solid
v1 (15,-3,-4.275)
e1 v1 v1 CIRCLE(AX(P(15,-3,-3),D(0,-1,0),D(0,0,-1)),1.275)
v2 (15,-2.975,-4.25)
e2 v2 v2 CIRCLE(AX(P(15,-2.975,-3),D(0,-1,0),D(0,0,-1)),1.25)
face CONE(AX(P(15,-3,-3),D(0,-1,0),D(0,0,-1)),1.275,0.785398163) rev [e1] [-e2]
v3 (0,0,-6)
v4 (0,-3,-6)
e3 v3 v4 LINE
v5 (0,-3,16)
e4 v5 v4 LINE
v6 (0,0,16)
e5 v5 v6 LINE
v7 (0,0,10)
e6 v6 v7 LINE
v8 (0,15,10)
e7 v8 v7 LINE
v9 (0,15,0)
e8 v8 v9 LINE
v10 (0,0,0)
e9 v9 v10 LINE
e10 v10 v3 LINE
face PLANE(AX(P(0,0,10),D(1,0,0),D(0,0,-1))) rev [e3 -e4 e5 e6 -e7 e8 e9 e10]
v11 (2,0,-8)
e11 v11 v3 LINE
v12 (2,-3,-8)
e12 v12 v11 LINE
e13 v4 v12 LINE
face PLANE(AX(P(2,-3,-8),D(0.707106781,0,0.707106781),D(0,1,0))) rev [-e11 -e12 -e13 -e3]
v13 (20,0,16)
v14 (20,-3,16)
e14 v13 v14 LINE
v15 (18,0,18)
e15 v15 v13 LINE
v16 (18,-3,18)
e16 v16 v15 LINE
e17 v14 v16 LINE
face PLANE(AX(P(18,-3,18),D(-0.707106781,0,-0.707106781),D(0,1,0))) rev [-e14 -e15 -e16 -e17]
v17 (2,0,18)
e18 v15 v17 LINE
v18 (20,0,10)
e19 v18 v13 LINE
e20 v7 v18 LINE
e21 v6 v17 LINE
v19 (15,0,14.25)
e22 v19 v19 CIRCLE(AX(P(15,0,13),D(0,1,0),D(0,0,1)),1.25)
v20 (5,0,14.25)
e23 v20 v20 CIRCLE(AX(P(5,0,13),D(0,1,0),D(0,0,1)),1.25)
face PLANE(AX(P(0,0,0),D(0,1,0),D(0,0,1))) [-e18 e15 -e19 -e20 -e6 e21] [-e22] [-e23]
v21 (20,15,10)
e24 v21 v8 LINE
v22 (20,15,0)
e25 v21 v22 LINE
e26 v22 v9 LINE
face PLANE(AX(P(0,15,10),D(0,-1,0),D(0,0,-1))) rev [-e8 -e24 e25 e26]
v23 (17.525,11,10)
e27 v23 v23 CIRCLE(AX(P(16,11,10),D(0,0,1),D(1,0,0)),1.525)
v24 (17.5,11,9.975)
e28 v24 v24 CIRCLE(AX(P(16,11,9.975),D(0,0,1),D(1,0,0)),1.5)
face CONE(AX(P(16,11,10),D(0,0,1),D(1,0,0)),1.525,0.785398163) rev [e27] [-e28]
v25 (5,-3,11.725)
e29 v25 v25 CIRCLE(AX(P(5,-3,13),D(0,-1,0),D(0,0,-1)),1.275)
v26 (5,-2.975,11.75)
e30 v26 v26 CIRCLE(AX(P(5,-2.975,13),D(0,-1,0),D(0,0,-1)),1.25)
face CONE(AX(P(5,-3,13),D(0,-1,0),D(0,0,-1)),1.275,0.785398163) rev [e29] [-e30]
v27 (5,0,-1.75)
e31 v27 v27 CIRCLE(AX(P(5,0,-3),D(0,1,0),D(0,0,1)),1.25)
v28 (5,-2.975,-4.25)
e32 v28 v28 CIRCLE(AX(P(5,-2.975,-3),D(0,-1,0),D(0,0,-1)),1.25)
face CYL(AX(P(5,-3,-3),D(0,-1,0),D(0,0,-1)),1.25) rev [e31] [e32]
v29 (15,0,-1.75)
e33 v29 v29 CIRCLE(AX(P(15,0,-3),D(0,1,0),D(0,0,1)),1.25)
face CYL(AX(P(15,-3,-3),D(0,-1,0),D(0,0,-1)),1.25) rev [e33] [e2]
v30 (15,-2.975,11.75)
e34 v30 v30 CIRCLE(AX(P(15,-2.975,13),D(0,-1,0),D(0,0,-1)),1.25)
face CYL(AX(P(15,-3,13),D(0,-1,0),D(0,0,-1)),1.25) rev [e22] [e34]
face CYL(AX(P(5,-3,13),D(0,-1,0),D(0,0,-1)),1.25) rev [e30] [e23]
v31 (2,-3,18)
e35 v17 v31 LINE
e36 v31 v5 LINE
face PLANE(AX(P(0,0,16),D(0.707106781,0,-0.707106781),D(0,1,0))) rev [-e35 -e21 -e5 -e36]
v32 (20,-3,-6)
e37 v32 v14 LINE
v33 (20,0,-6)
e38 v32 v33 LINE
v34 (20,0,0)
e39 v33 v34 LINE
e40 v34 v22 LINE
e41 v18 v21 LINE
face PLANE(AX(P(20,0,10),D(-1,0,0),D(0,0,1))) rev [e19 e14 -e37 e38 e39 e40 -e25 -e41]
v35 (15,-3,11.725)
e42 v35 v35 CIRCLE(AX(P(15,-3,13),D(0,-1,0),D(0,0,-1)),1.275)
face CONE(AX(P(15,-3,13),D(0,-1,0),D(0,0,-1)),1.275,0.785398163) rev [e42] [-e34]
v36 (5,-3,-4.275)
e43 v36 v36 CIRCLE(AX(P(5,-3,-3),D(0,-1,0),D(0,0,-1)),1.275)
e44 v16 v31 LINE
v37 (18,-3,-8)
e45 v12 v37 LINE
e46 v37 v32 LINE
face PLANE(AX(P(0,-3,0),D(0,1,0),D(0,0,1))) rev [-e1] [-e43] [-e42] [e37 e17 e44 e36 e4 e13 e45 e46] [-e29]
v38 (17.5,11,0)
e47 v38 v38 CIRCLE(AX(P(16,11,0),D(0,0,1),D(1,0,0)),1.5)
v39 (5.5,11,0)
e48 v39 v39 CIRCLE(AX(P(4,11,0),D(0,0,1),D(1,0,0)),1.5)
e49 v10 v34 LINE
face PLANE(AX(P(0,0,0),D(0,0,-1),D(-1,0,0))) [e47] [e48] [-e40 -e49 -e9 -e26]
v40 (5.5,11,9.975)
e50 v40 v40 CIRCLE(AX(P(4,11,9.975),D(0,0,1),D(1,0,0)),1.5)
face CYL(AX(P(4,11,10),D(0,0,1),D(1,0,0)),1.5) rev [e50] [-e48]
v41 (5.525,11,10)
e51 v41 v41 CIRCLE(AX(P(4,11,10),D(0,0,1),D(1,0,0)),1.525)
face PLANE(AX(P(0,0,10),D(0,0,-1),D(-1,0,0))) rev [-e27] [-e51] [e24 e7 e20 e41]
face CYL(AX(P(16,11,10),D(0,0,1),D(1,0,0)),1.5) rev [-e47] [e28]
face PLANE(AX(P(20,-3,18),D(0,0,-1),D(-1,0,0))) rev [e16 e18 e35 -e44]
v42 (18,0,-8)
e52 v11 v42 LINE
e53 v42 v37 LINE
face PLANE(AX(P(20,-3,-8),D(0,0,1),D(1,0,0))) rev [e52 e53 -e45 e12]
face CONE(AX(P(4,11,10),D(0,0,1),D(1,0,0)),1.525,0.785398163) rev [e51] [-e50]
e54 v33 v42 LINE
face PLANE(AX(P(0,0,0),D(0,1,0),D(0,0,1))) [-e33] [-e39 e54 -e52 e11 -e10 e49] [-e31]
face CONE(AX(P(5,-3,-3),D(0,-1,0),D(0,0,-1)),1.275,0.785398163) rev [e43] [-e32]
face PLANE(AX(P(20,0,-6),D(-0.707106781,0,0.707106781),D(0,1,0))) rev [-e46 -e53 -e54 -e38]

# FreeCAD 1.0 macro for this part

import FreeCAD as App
import Part
import Sketcher
from FreeCAD import Vector
Q = App.Units.Quantity


def edges_at(feature, points):
    """Names of the edges that pass closest to the given points."""
    edges = feature.Shape.Edges
    near = lambda p: min(range(len(edges)), key=lambda i: edges[i].distToShape(Part.Vertex(*p))[0])
    return sorted({f"Edge{near(p) + 1}" for p in points})


def add_polygon(sketch, points):
    """Adds a closed chain of lines whose ends are joined by coincident constraints."""
    first, n = sketch.GeometryCount, len(points)
    for a, b in zip(points, points[1:] + points[:1]):
        sketch.addGeometry(Part.LineSegment(App.Vector(*a, 0), App.Vector(*b, 0)), False)
    for i in range(n):
        sketch.addConstraint(Sketcher.Constraint("Coincident", first + i, 2, first + (i + 1) % n, 1))

doc = App.newDocument("Part")
body = doc.addObject("PartDesign::Body", "Body")

# Sketch on XY plane
sketch1 = body.newObject("Sketcher::SketchObject", "Sketch")
sketch1.AttachmentSupport = (doc.getObject("XY_Plane"), [""])
sketch1.MapMode = "FlatFace"
add_polygon(sketch1, [(0, 15), (0, 0), (20, 0), (20, 15)])  # lines 0-3
sketch1.addConstraint([
    Sketcher.Constraint("Vertical", 0),
    Sketcher.Constraint("Horizontal", 1),
    Sketcher.Constraint("Vertical", 2),
    Sketcher.Constraint("Horizontal", 3),
    Sketcher.Constraint("Coincident", 0, 2, -1, 1),
    Sketcher.Constraint("DistanceX", 1, 1, 1, 2, Q("20 mm")),
    Sketcher.Constraint("DistanceY", 0, 2, 0, 1, Q("15 mm")),
])
pad1 = body.newObject("PartDesign::Pad", "Pad")
pad1.Profile = sketch1
pad1.Length = 10

# Sketch on XY plane
sketch2 = body.newObject("Sketcher::SketchObject", "Sketch001")
sketch2.AttachmentSupport = (doc.getObject("XY_Plane"), [""])
sketch2.MapMode = "FlatFace"
sketch2.AttachmentOffset = App.Placement(Vector(0, 0, 10), App.Rotation())
sketch2.addGeometry([
    Part.Circle(Vector(4, 11, 0), Vector(0, 0, 1), 1.5),
    Part.Circle(Vector(16, 11, 0), Vector(0, 0, 1), 1.5),
], False)
sketch2.addConstraint([
    Sketcher.Constraint("Equal", 0, 1),
    Sketcher.Constraint("Horizontal", 0, 3, 1, 3),
    Sketcher.Constraint("Diameter", 0, Q("3 mm")),
    Sketcher.Constraint("DistanceX", -1, 1, 0, 3, Q("4 mm")),
    Sketcher.Constraint("DistanceY", -1, 1, 0, 3, Q("11 mm")),
    Sketcher.Constraint("DistanceX", -1, 1, 1, 3, Q("16 mm")),
])
doc.recompute()
hole = body.newObject("PartDesign::Hole", "Hole")
hole.Profile = sketch2
hole.ThreadType = "None"
hole.Diameter = 3
hole.DepthType = "ThroughAll"
hole.HoleCutType = "Countersink"
hole.HoleCutDiameter = 3.05
hole.HoleCutCountersinkAngle = 90

# Sketch on XZ plane
sketch3 = body.newObject("Sketcher::SketchObject", "Sketch002")
sketch3.AttachmentSupport = (doc.getObject("XZ_Plane"), [""])
sketch3.MapMode = "FlatFace"
add_polygon(sketch3, [(0, 18), (0, -8), (20, -8), (20, 18)])  # lines 0-3
sketch3.addConstraint([
    Sketcher.Constraint("Vertical", 0),
    Sketcher.Constraint("Horizontal", 1),
    Sketcher.Constraint("Vertical", 2),
    Sketcher.Constraint("Horizontal", 3),
    Sketcher.Constraint("PointOnObject", 0, 2, -2),
    Sketcher.Constraint("DistanceX", 1, 1, 1, 2, Q("20 mm")),
    Sketcher.Constraint("DistanceY", 0, 2, 0, 1, Q("26 mm")),
    Sketcher.Constraint("DistanceY", 0, 2, -1, 1, Q("8 mm")),
])
pad2 = body.newObject("PartDesign::Pad", "Pad001")
pad2.Profile = sketch3
pad2.Length = 3

# Sketch on XZ plane
sketch4 = body.newObject("Sketcher::SketchObject", "Sketch003")
sketch4.AttachmentSupport = (doc.getObject("XZ_Plane"), [""])
sketch4.MapMode = "FlatFace"
sketch4.AttachmentOffset = App.Placement(Vector(0, 0, 3), App.Rotation())
sketch4.addGeometry([
    Part.Circle(Vector(5, 13, 0), Vector(0, 0, 1), 1.2),
    Part.Circle(Vector(15, 13, 0), Vector(0, 0, 1), 1.2),
    Part.Circle(Vector(5, -3, 0), Vector(0, 0, 1), 1.2),
    Part.Circle(Vector(15, -3, 0), Vector(0, 0, 1), 1.2),
], False)
sketch4.addConstraint([
    Sketcher.Constraint("Equal", 0, 1),
    Sketcher.Constraint("Equal", 1, 2),
    Sketcher.Constraint("Equal", 2, 3),
    Sketcher.Constraint("Horizontal", 0, 3, 1, 3),
    Sketcher.Constraint("Horizontal", 2, 3, 3, 3),
    Sketcher.Constraint("Vertical", 0, 3, 2, 3),
    Sketcher.Constraint("Vertical", 1, 3, 3, 3),
    Sketcher.Constraint("Diameter", 0, Q("2.5 mm")),
    Sketcher.Constraint("DistanceX", -1, 1, 0, 3, Q("5 mm")),
    Sketcher.Constraint("DistanceY", -1, 1, 0, 3, Q("13 mm")),
    Sketcher.Constraint("DistanceX", -1, 1, 1, 3, Q("15 mm")),
    Sketcher.Constraint("DistanceY", 2, 3, -1, 1, Q("3 mm")),
])
doc.recompute()
hole2 = body.newObject("PartDesign::Hole", "Hole001")
hole2.Profile = sketch4
hole2.ThreadType = "None"
hole2.Diameter = 2.5
hole2.DepthType = "ThroughAll"
hole2.HoleCutType = "Countersink"
hole2.HoleCutDiameter = 2.55
hole2.HoleCutCountersinkAngle = 90
doc.recompute()

chamfer = body.newObject("PartDesign::Chamfer", "Chamfer")
chamfer.Base = (hole2, edges_at(hole2, [
    (20, -1.5, -8),
    (20, -1.5, 18),
    (0, -1.5, 18),
    (0, -1.5, -8),
]))
chamfer.Size = 2

doc.recompute()
